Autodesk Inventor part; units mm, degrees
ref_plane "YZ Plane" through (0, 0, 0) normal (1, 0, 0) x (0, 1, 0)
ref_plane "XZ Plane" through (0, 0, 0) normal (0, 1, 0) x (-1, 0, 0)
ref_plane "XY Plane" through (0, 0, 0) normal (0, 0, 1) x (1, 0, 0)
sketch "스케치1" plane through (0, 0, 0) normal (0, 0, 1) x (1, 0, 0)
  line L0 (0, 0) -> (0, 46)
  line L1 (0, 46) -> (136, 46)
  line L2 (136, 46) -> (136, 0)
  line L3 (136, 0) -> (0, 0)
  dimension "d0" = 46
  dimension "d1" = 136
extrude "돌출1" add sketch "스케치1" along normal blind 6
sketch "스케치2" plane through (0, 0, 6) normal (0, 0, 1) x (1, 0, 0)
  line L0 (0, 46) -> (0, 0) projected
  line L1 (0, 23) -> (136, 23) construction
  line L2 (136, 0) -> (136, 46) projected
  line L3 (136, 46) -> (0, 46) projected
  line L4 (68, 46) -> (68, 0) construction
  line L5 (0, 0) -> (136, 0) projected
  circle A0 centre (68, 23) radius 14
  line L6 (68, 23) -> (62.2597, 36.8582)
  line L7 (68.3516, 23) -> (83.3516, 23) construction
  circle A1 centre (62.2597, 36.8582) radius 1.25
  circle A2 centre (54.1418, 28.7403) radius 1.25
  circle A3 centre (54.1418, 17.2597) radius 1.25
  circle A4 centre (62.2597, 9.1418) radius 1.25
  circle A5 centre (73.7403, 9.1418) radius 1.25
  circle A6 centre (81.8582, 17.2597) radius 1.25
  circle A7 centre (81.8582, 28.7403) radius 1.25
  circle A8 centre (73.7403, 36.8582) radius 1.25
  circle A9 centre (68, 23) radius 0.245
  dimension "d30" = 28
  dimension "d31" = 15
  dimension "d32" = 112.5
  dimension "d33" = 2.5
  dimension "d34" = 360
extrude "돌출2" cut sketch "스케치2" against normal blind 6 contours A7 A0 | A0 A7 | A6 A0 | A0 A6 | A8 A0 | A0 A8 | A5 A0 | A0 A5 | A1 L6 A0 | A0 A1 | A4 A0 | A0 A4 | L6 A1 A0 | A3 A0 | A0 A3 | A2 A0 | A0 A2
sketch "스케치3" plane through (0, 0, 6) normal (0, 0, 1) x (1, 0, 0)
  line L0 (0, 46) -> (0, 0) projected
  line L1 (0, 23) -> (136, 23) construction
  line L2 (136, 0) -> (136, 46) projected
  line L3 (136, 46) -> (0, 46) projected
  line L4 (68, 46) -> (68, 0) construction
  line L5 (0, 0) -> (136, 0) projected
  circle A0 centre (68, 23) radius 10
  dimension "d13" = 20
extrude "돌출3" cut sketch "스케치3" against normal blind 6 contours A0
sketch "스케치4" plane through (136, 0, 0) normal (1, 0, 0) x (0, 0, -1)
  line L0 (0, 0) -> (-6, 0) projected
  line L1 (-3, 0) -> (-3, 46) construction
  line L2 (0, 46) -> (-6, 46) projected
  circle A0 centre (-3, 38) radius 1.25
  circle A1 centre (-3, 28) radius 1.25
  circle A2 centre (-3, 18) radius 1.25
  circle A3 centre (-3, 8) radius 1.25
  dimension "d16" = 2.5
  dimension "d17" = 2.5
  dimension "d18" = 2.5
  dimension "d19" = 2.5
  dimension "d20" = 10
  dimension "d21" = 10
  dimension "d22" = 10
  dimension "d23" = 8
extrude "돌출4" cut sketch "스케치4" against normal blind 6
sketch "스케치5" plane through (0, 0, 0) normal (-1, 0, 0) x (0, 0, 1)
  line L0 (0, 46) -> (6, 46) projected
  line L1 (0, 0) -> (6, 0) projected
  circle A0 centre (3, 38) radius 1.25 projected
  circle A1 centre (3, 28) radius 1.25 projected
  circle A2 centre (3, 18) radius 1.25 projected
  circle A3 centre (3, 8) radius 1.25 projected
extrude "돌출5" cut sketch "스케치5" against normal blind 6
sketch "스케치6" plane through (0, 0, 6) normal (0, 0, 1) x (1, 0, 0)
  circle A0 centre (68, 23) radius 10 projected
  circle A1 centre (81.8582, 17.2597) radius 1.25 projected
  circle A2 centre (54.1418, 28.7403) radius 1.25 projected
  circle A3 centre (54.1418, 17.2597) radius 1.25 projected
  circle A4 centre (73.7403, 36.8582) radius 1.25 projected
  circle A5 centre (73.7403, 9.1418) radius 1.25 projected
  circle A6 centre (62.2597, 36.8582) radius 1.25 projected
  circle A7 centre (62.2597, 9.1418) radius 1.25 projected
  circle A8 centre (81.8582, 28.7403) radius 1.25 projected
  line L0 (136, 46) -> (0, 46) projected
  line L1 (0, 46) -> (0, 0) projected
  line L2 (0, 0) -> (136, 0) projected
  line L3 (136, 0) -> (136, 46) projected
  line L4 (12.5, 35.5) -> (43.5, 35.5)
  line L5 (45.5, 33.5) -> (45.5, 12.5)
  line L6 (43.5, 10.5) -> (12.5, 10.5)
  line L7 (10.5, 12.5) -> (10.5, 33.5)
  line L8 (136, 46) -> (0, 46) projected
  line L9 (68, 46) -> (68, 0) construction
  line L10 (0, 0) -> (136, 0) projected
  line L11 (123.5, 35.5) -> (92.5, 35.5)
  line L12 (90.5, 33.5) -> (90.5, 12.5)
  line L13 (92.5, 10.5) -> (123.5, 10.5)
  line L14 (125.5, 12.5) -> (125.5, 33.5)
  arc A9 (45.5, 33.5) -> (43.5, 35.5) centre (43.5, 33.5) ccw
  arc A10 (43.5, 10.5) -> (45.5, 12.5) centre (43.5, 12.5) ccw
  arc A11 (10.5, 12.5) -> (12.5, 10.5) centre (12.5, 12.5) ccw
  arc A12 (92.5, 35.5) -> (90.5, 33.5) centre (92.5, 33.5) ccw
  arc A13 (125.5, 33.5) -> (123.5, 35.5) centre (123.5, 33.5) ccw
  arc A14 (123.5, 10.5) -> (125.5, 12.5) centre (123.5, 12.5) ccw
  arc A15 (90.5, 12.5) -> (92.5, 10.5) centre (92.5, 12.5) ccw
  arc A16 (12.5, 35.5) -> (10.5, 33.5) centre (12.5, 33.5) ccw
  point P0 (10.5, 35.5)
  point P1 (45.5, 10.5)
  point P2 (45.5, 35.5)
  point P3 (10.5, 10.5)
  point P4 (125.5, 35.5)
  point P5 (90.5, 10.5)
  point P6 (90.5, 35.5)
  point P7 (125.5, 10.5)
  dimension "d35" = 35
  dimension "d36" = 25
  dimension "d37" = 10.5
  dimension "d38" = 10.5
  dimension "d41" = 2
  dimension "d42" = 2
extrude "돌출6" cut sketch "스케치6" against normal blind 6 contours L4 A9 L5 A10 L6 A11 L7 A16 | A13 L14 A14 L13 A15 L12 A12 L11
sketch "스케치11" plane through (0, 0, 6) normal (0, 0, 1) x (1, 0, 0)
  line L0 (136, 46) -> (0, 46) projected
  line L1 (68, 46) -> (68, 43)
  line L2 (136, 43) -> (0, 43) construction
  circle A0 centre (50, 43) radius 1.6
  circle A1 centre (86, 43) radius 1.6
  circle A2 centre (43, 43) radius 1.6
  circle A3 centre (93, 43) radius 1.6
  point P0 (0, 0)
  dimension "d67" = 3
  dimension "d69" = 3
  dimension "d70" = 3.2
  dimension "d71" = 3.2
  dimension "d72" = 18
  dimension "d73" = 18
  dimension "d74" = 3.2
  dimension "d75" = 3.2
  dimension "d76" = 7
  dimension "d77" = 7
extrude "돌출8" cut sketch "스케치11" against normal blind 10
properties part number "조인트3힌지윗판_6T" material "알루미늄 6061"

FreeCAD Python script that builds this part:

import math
import FreeCAD as App
import Part
import Sketcher
Q = App.Units.Quantity

doc = App.newDocument("Part")
body = doc.addObject("PartDesign::Body", "Body")

# Sketch on XY plane
sketch1 = body.newObject("Sketcher::SketchObject", "Sketch")
sketch1.AttachmentSupport = (doc.getObject("XY_Plane"), [""])
sketch1.MapMode = "FlatFace"
sketch1.addGeometry(Part.LineSegment(App.Vector(0, 46, 0), App.Vector(0, 0, 0)), False)
sketch1.addGeometry(Part.LineSegment(App.Vector(0, 0, 0), App.Vector(136, 0, 0)), False)
sketch1.addGeometry(Part.LineSegment(App.Vector(136, 0, 0), App.Vector(136, 46, 0)), False)
sketch1.addGeometry(Part.LineSegment(App.Vector(136, 46, 0), App.Vector(0, 46, 0)), False)
sketch1.addConstraint(Sketcher.Constraint("Coincident", 0, 2, 1, 1))
sketch1.addConstraint(Sketcher.Constraint("Coincident", 1, 2, 2, 1))
sketch1.addConstraint(Sketcher.Constraint("Coincident", 2, 2, 3, 1))
sketch1.addConstraint(Sketcher.Constraint("Coincident", 3, 2, 0, 1))
sketch1.addConstraint(Sketcher.Constraint("Vertical", 0))
sketch1.addConstraint(Sketcher.Constraint("Horizontal", 1))
sketch1.addConstraint(Sketcher.Constraint("Vertical", 2))
sketch1.addConstraint(Sketcher.Constraint("Horizontal", 3))
sketch1.addConstraint(Sketcher.Constraint("Coincident", 0, 2, -1, 1))
sketch1.addConstraint(Sketcher.Constraint("DistanceX", 1, 1, 1, 2, Q("136 mm")))
sketch1.addConstraint(Sketcher.Constraint("DistanceY", 0, 2, 0, 1, Q("46 mm")))
pad1 = body.newObject("PartDesign::Pad", "Pad")
pad1.Profile = sketch1
pad1.Length = 6

# Sketch on XY plane
sketch2 = body.newObject("Sketcher::SketchObject", "Sketch001")
sketch2.AttachmentSupport = (doc.getObject("XY_Plane"), [""])
sketch2.MapMode = "FlatFace"
sketch2.AttachmentOffset = App.Placement(App.Vector(0, 0, 6), App.Rotation())
sketch2.addGeometry(Part.Circle(App.Vector(81.9, 28.7, 0), App.Vector(0, 0, 1), 1.2), False)
sketch2.addGeometry(Part.Circle(App.Vector(81.9, 17.3, 0), App.Vector(0, 0, 1), 1.2), False)
sketch2.addGeometry(Part.Circle(App.Vector(73.7, 36.9, 0), App.Vector(0, 0, 1), 1.2), False)
sketch2.addGeometry(Part.Circle(App.Vector(73.7, 9.1, 0), App.Vector(0, 0, 1), 1.2), False)
sketch2.addGeometry(Part.Circle(App.Vector(62.3, 36.9, 0), App.Vector(0, 0, 1), 1.2), False)
sketch2.addGeometry(Part.Circle(App.Vector(62.3, 9.1, 0), App.Vector(0, 0, 1), 1.2), False)
sketch2.addGeometry(Part.Circle(App.Vector(54.1, 17.3, 0), App.Vector(0, 0, 1), 1.2), False)
sketch2.addGeometry(Part.Circle(App.Vector(54.1, 28.7, 0), App.Vector(0, 0, 1), 1.2), False)
sketch2.addConstraint(Sketcher.Constraint("Equal", 0, 1))
sketch2.addConstraint(Sketcher.Constraint("Equal", 1, 2))
sketch2.addConstraint(Sketcher.Constraint("Equal", 2, 3))
sketch2.addConstraint(Sketcher.Constraint("Equal", 3, 4))
sketch2.addConstraint(Sketcher.Constraint("Equal", 4, 5))
sketch2.addConstraint(Sketcher.Constraint("Equal", 5, 6))
sketch2.addConstraint(Sketcher.Constraint("Equal", 6, 7))
sketch2.addConstraint(Sketcher.Constraint("Horizontal", 2, 3, 4, 3))
sketch2.addConstraint(Sketcher.Constraint("Horizontal", 3, 3, 5, 3))
sketch2.addConstraint(Sketcher.Constraint("Horizontal", 1, 3, 6, 3))
sketch2.addConstraint(Sketcher.Constraint("Horizontal", 0, 3, 7, 3))
sketch2.addConstraint(Sketcher.Constraint("Vertical", 0, 3, 1, 3))
sketch2.addConstraint(Sketcher.Constraint("Vertical", 2, 3, 3, 3))
sketch2.addConstraint(Sketcher.Constraint("Vertical", 4, 3, 5, 3))
sketch2.addConstraint(Sketcher.Constraint("Vertical", 6, 3, 7, 3))
sketch2.addConstraint(Sketcher.Constraint("Diameter", 0, Q("2.5 mm")))
sketch2.addConstraint(Sketcher.Constraint("DistanceX", 2, 3, 0, 3, Q("8.118 mm")))
sketch2.addConstraint(Sketcher.Constraint("DistanceY", 0, 3, 2, 3, Q("8.118 mm")))
sketch2.addConstraint(Sketcher.Constraint("DistanceY", 3, 3, 1, 3, Q("8.118 mm")))
sketch2.addConstraint(Sketcher.Constraint("DistanceX", 6, 3, 5, 3, Q("8.118 mm")))
sketch2.addConstraint(Sketcher.Constraint("DistanceX", -1, 1, 0, 3, Q("81.8582 mm")))
sketch2.addConstraint(Sketcher.Constraint("DistanceY", -1, 1, 0, 3, Q("28.7403 mm")))
sketch2.addConstraint(Sketcher.Constraint("DistanceY", -1, 1, 1, 3, Q("17.2597 mm")))
sketch2.addConstraint(Sketcher.Constraint("DistanceX", -1, 1, 4, 3, Q("62.2597 mm")))
pocket1 = body.newObject("PartDesign::Pocket", "Pocket")
pocket1.Profile = sketch2
pocket1.Length = 6

# Sketch on XY plane
sketch3 = body.newObject("Sketcher::SketchObject", "Sketch002")
sketch3.AttachmentSupport = (doc.getObject("XY_Plane"), [""])
sketch3.MapMode = "FlatFace"
sketch3.AttachmentOffset = App.Placement(App.Vector(0, 0, 6), App.Rotation())
sketch3.addGeometry(Part.Circle(App.Vector(68, 23, 0), App.Vector(0, 0, 1), 10), False)
sketch3.addConstraint(Sketcher.Constraint("Diameter", 0, Q("20 mm")))
sketch3.addConstraint(Sketcher.Constraint("DistanceX", -1, 1, 0, 3, Q("68 mm")))
sketch3.addConstraint(Sketcher.Constraint("DistanceY", -1, 1, 0, 3, Q("23 mm")))
pocket2 = body.newObject("PartDesign::Pocket", "Pocket001")
pocket2.Profile = sketch3
pocket2.Length = 6

# Sketch on YZ plane
sketch4 = body.newObject("Sketcher::SketchObject", "Sketch003")
sketch4.AttachmentSupport = (doc.getObject("YZ_Plane"), [""])
sketch4.MapMode = "FlatFace"
sketch4.AttachmentOffset = App.Placement(App.Vector(0, 0, 136), App.Rotation())
sketch4.addGeometry(Part.Circle(App.Vector(38, 3, 0), App.Vector(0, 0, 1), 1.2), False)
sketch4.addGeometry(Part.Circle(App.Vector(28, 3, 0), App.Vector(0, 0, 1), 1.2), False)
sketch4.addGeometry(Part.Circle(App.Vector(18, 3, 0), App.Vector(0, 0, 1), 1.2), False)
sketch4.addGeometry(Part.Circle(App.Vector(8, 3, 0), App.Vector(0, 0, 1), 1.2), False)
sketch4.addConstraint(Sketcher.Constraint("Equal", 0, 1))
sketch4.addConstraint(Sketcher.Constraint("Equal", 1, 2))
sketch4.addConstraint(Sketcher.Constraint("Equal", 2, 3))
sketch4.addConstraint(Sketcher.Constraint("Horizontal", 0, 3, 1, 3))
sketch4.addConstraint(Sketcher.Constraint("Horizontal", 1, 3, 2, 3))
sketch4.addConstraint(Sketcher.Constraint("Horizontal", 2, 3, 3, 3))
sketch4.addConstraint(Sketcher.Constraint("Diameter", 0, Q("2.5 mm")))
sketch4.addConstraint(Sketcher.Constraint("DistanceX", -1, 1, 3, 3, Q("8 mm")))
sketch4.addConstraint(Sketcher.Constraint("DistanceX", 1, 3, 0, 3, Q("10 mm")))
sketch4.addConstraint(Sketcher.Constraint("DistanceX", 2, 3, 1, 3, Q("10 mm")))
sketch4.addConstraint(Sketcher.Constraint("DistanceX", 3, 3, 2, 3, Q("10 mm")))
sketch4.addConstraint(Sketcher.Constraint("DistanceY", -1, 1, 0, 3, Q("3 mm")))
pocket3 = body.newObject("PartDesign::Pocket", "Pocket002")
pocket3.Profile = sketch4
pocket3.Length = 6

# Sketch on YZ plane
sketch5 = body.newObject("Sketcher::SketchObject", "Sketch004")
sketch5.AttachmentSupport = (doc.getObject("YZ_Plane"), [""])
sketch5.MapMode = "FlatFace"
sketch5.addGeometry(Part.Circle(App.Vector(38, 3, 0), App.Vector(0, 0, 1), 1.2), False)
sketch5.addGeometry(Part.Circle(App.Vector(28, 3, 0), App.Vector(0, 0, 1), 1.2), False)
sketch5.addGeometry(Part.Circle(App.Vector(18, 3, 0), App.Vector(0, 0, 1), 1.2), False)
sketch5.addGeometry(Part.Circle(App.Vector(8, 3, 0), App.Vector(0, 0, 1), 1.2), False)
sketch5.addConstraint(Sketcher.Constraint("Equal", 0, 1))
sketch5.addConstraint(Sketcher.Constraint("Equal", 1, 2))
sketch5.addConstraint(Sketcher.Constraint("Equal", 2, 3))
sketch5.addConstraint(Sketcher.Constraint("Horizontal", 0, 3, 1, 3))
sketch5.addConstraint(Sketcher.Constraint("Horizontal", 1, 3, 2, 3))
sketch5.addConstraint(Sketcher.Constraint("Horizontal", 2, 3, 3, 3))
sketch5.addConstraint(Sketcher.Constraint("Diameter", 0, Q("2.5 mm")))
sketch5.addConstraint(Sketcher.Constraint("DistanceX", -1, 1, 0, 3, Q("38 mm")))
sketch5.addConstraint(Sketcher.Constraint("DistanceY", -1, 1, 0, 3, Q("3 mm")))
sketch5.addConstraint(Sketcher.Constraint("DistanceX", -1, 1, 1, 3, Q("28 mm")))
sketch5.addConstraint(Sketcher.Constraint("DistanceX", -1, 1, 2, 3, Q("18 mm")))
sketch5.addConstraint(Sketcher.Constraint("DistanceX", -1, 1, 3, 3, Q("8 mm")))
pocket4 = body.newObject("PartDesign::Pocket", "Pocket003")
pocket4.Profile = sketch5
pocket4.Length = 6
pocket4.Reversed = True

# Sketch on XY plane
sketch6 = body.newObject("Sketcher::SketchObject", "Sketch005")
sketch6.AttachmentSupport = (doc.getObject("XY_Plane"), [""])
sketch6.MapMode = "FlatFace"
sketch6.AttachmentOffset = App.Placement(App.Vector(0, 0, 6), App.Rotation())
sketch6.addGeometry(Part.LineSegment(App.Vector(43.5, 35.5, 0), App.Vector(12.5, 35.5, 0)), False)
sketch6.addGeometry(Part.ArcOfCircle(Part.Circle(App.Vector(12.5, 33.5, 0), App.Vector(0, 0, 1), 2), math.radians(90), math.radians(180)), False)
sketch6.addGeometry(Part.LineSegment(App.Vector(10.5, 33.5, 0), App.Vector(10.5, 12.5, 0)), False)
sketch6.addGeometry(Part.ArcOfCircle(Part.Circle(App.Vector(12.5, 12.5, 0), App.Vector(0, 0, 1), 2), math.radians(180), math.radians(270)), False)
sketch6.addGeometry(Part.LineSegment(App.Vector(12.5, 10.5, 0), App.Vector(43.5, 10.5, 0)), False)
sketch6.addGeometry(Part.ArcOfCircle(Part.Circle(App.Vector(43.5, 12.5, 0), App.Vector(0, 0, 1), 2), math.radians(-90), math.radians(0)), False)
sketch6.addGeometry(Part.LineSegment(App.Vector(45.5, 12.5, 0), App.Vector(45.5, 33.5, 0)), False)
sketch6.addGeometry(Part.ArcOfCircle(Part.Circle(App.Vector(43.5, 33.5, 0), App.Vector(0, 0, 1), 2), math.radians(0), math.radians(90)), False)
sketch6.addGeometry(Part.ArcOfCircle(Part.Circle(App.Vector(123.5, 33.5, 0), App.Vector(0, 0, 1), 2), math.radians(0), math.radians(90)), False)
sketch6.addGeometry(Part.LineSegment(App.Vector(123.5, 35.5, 0), App.Vector(92.5, 35.5, 0)), False)
sketch6.addGeometry(Part.ArcOfCircle(Part.Circle(App.Vector(92.5, 33.5, 0), App.Vector(0, 0, 1), 2), math.radians(90), math.radians(180)), False)
sketch6.addGeometry(Part.LineSegment(App.Vector(90.5, 33.5, 0), App.Vector(90.5, 12.5, 0)), False)
sketch6.addGeometry(Part.ArcOfCircle(Part.Circle(App.Vector(92.5, 12.5, 0), App.Vector(0, 0, 1), 2), math.radians(180), math.radians(270)), False)
sketch6.addGeometry(Part.LineSegment(App.Vector(92.5, 10.5, 0), App.Vector(123.5, 10.5, 0)), False)
sketch6.addGeometry(Part.ArcOfCircle(Part.Circle(App.Vector(123.5, 12.5, 0), App.Vector(0, 0, 1), 2), math.radians(-90), math.radians(0)), False)
sketch6.addGeometry(Part.LineSegment(App.Vector(125.5, 12.5, 0), App.Vector(125.5, 33.5, 0)), False)
sketch6.addConstraint(Sketcher.Constraint("Tangent", 0, 2, 1, 1))
sketch6.addConstraint(Sketcher.Constraint("Tangent", 1, 2, 2, 1))
sketch6.addConstraint(Sketcher.Constraint("Tangent", 2, 2, 3, 1))
sketch6.addConstraint(Sketcher.Constraint("Tangent", 3, 2, 4, 1))
sketch6.addConstraint(Sketcher.Constraint("Tangent", 4, 2, 5, 1))
sketch6.addConstraint(Sketcher.Constraint("Tangent", 5, 2, 6, 1))
sketch6.addConstraint(Sketcher.Constraint("Tangent", 6, 2, 7, 1))
sketch6.addConstraint(Sketcher.Constraint("Tangent", 7, 2, 0, 1))
sketch6.addConstraint(Sketcher.Constraint("Tangent", 8, 2, 9, 1))
sketch6.addConstraint(Sketcher.Constraint("Tangent", 9, 2, 10, 1))
sketch6.addConstraint(Sketcher.Constraint("Tangent", 10, 2, 11, 1))
sketch6.addConstraint(Sketcher.Constraint("Tangent", 11, 2, 12, 1))
sketch6.addConstraint(Sketcher.Constraint("Tangent", 12, 2, 13, 1))
sketch6.addConstraint(Sketcher.Constraint("Tangent", 13, 2, 14, 1))
sketch6.addConstraint(Sketcher.Constraint("Tangent", 14, 2, 15, 1))
sketch6.addConstraint(Sketcher.Constraint("Tangent", 15, 2, 8, 1))
sketch6.addConstraint(Sketcher.Constraint("Horizontal", 0))
sketch6.addConstraint(Sketcher.Constraint("Vertical", 2))
sketch6.addConstraint(Sketcher.Constraint("Horizontal", 4))
sketch6.addConstraint(Sketcher.Constraint("Vertical", 6))
sketch6.addConstraint(Sketcher.Constraint("Horizontal", 9))
sketch6.addConstraint(Sketcher.Constraint("Vertical", 11))
sketch6.addConstraint(Sketcher.Constraint("Horizontal", 13))
sketch6.addConstraint(Sketcher.Constraint("Vertical", 15))
sketch6.addConstraint(Sketcher.Constraint("Equal", 1, 3))
sketch6.addConstraint(Sketcher.Constraint("Equal", 3, 5))
sketch6.addConstraint(Sketcher.Constraint("Equal", 5, 7))
sketch6.addConstraint(Sketcher.Constraint("Equal", 7, 8))
sketch6.addConstraint(Sketcher.Constraint("Equal", 8, 10))
sketch6.addConstraint(Sketcher.Constraint("Equal", 10, 12))
sketch6.addConstraint(Sketcher.Constraint("Equal", 12, 14))
sketch6.addConstraint(Sketcher.Constraint("Horizontal", 7, 3, 8, 3))
sketch6.addConstraint(Sketcher.Constraint("Horizontal", 5, 3, 12, 3))
sketch6.addConstraint(Sketcher.Constraint("Equal", 4, 9))
sketch6.addConstraint(Sketcher.Constraint("Radius", 1, Q("2 mm")))
sketch6.addConstraint(Sketcher.Constraint("DistanceY", 3, 2, 0, 2, Q("25 mm")))
sketch6.addConstraint(Sketcher.Constraint("DistanceX", -1, 1, 1, 2, Q("10.5 mm")))
sketch6.addConstraint(Sketcher.Constraint("DistanceY", -1, 1, 3, 2, Q("10.5 mm")))
sketch6.addConstraint(Sketcher.Constraint("DistanceX", 0, 2, 0, 1, Q("31 mm")))
sketch6.addConstraint(Sketcher.Constraint("DistanceX", 7, 3, 8, 3, Q("80 mm")))
pocket5 = body.newObject("PartDesign::Pocket", "Pocket004")
pocket5.Profile = sketch6
pocket5.Length = 6

# Sketch on XY plane
sketch7 = body.newObject("Sketcher::SketchObject", "Sketch006")
sketch7.AttachmentSupport = (doc.getObject("XY_Plane"), [""])
sketch7.MapMode = "FlatFace"
sketch7.AttachmentOffset = App.Placement(App.Vector(0, 0, 6), App.Rotation())
sketch7.addGeometry(Part.Circle(App.Vector(50, 43, 0), App.Vector(0, 0, 1), 1.6), False)
sketch7.addGeometry(Part.Circle(App.Vector(86, 43, 0), App.Vector(0, 0, 1), 1.6), False)
sketch7.addGeometry(Part.Circle(App.Vector(43, 43, 0), App.Vector(0, 0, 1), 1.6), False)
sketch7.addGeometry(Part.Circle(App.Vector(93, 43, 0), App.Vector(0, 0, 1), 1.6), False)
sketch7.addConstraint(Sketcher.Constraint("Equal", 0, 1))
sketch7.addConstraint(Sketcher.Constraint("Equal", 1, 2))
sketch7.addConstraint(Sketcher.Constraint("Equal", 2, 3))
sketch7.addConstraint(Sketcher.Constraint("Horizontal", 0, 3, 1, 3))
sketch7.addConstraint(Sketcher.Constraint("Horizontal", 1, 3, 2, 3))
sketch7.addConstraint(Sketcher.Constraint("Horizontal", 2, 3, 3, 3))
sketch7.addConstraint(Sketcher.Constraint("Diameter", 0, Q("3.2 mm")))
sketch7.addConstraint(Sketcher.Constraint("DistanceX", 2, 3, 0, 3, Q("7 mm")))
sketch7.addConstraint(Sketcher.Constraint("DistanceX", 1, 3, 3, 3, Q("7 mm")))
sketch7.addConstraint(Sketcher.Constraint("DistanceX", -1, 1, 0, 3, Q("50 mm")))
sketch7.addConstraint(Sketcher.Constraint("DistanceY", -1, 1, 0, 3, Q("43 mm")))
sketch7.addConstraint(Sketcher.Constraint("DistanceX", -1, 1, 1, 3, Q("86 mm")))
pocket6 = body.newObject("PartDesign::Pocket", "Pocket005")
pocket6.Profile = sketch7
pocket6.Length = 10

doc.recompute()
